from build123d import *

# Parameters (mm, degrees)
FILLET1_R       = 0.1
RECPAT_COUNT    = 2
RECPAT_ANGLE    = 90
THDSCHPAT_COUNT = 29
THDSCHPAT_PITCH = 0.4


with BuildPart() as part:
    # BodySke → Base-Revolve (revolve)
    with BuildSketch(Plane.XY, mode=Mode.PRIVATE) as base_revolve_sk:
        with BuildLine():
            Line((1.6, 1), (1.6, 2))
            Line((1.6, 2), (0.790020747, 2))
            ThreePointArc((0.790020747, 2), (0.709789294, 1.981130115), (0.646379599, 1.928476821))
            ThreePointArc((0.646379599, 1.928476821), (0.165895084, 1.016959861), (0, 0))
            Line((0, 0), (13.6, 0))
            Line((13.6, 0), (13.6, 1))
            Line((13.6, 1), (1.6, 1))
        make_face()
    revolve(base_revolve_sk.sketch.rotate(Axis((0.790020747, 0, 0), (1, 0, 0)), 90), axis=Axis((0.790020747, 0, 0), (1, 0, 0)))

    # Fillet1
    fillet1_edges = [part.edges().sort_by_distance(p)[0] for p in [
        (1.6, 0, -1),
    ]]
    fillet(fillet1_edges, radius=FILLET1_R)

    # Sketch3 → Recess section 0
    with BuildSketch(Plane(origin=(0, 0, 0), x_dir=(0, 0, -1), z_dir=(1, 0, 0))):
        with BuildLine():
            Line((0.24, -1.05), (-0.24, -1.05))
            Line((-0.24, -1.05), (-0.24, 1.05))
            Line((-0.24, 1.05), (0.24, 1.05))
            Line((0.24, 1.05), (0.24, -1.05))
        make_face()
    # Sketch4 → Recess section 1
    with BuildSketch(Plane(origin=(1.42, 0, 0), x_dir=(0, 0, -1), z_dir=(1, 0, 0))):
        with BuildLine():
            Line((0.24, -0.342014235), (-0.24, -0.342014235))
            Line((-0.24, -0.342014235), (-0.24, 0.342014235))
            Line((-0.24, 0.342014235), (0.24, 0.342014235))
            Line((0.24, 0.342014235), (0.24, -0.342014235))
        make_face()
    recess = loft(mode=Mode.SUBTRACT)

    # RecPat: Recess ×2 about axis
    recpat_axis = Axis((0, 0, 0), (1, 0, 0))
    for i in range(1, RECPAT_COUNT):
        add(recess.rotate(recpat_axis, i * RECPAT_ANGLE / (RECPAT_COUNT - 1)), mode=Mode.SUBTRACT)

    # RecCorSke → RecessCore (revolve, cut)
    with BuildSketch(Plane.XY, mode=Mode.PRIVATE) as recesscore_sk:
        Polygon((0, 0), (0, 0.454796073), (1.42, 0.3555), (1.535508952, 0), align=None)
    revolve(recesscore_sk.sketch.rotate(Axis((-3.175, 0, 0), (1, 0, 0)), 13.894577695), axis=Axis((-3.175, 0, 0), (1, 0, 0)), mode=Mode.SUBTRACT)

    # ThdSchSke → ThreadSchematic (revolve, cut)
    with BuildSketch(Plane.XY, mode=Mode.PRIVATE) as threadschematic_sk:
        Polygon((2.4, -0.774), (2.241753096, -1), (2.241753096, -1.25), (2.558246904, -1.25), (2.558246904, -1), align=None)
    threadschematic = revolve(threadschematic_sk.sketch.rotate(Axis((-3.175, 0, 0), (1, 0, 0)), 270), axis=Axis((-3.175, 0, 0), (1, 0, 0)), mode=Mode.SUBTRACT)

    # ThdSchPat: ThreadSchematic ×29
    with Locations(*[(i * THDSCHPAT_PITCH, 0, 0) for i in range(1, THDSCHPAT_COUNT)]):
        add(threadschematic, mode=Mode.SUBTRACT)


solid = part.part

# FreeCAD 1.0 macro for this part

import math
import FreeCAD as App
import Part
import Sketcher
Q = App.Units.Quantity


def edges_at(feature, points):
    """Names of the edges that pass closest to the given points."""
    edges = feature.Shape.Edges
    near = lambda p: min(range(len(edges)), key=lambda i: edges[i].distToShape(Part.Vertex(*p))[0])
    return sorted({f"Edge{near(p) + 1}" for p in points})


def add_polygon(sketch, points):
    """Adds a closed chain of lines whose ends are joined by coincident constraints."""
    first, n = sketch.GeometryCount, len(points)
    for a, b in zip(points, points[1:] + points[:1]):
        sketch.addGeometry(Part.LineSegment(App.Vector(*a, 0), App.Vector(*b, 0)), False)
    for i in range(n):
        sketch.addConstraint(Sketcher.Constraint("Coincident", first + i, 2, first + (i + 1) % n, 1))

doc = App.newDocument("Part")
body = doc.addObject("PartDesign::Body", "Body")

sketch1 = doc.addObject("Sketcher::SketchObject", "Sketch")
body.addObject(sketch1)
sketch1.AttachmentSupport = (doc.XY_Plane, [""])
sketch1.MapMode = "FlatFace"
sketch1.addGeometry([
    Part.LineSegment(App.Vector(1.6, 1, 0), App.Vector(1.6, 2, 0)),
    Part.LineSegment(App.Vector(1.6, 2, 0), App.Vector(0.790021, 2, 0)),
    Part.ArcOfCircle(Part.Circle(App.Vector(0.790021, 1.82, 0), App.Vector(0, 0, 1), 0.18), math.radians(90), math.radians(142.940145)),
    Part.ArcOfCircle(Part.Circle(App.Vector(3.2, 0, 0), App.Vector(0, 0, 1), 3.2), math.radians(142.940145), math.radians(180)),
    Part.LineSegment(App.Vector(0, 0, 0), App.Vector(13.6, 0, 0)),
    Part.LineSegment(App.Vector(13.6, 0, 0), App.Vector(13.6, 1, 0)),
    Part.LineSegment(App.Vector(13.6, 1, 0), App.Vector(1.6, 1, 0)),
], False)
sketch1.addConstraint([
    Sketcher.Constraint("Coincident", 0, 2, 1, 1),
    Sketcher.Constraint("Tangent", 1, 2, 2, 1),
    Sketcher.Constraint("Tangent", 2, 2, 3, 1),
    Sketcher.Constraint("Coincident", 3, 2, 4, 1),
    Sketcher.Constraint("Coincident", 4, 2, 5, 1),
    Sketcher.Constraint("Coincident", 5, 2, 6, 1),
    Sketcher.Constraint("Coincident", 6, 2, 0, 1),
    Sketcher.Constraint("Vertical", 0),
    Sketcher.Constraint("Horizontal", 1),
    Sketcher.Constraint("Horizontal", 4),
    Sketcher.Constraint("Vertical", 5),
    Sketcher.Constraint("Horizontal", 6),
    Sketcher.Constraint("Coincident", 3, 2, -1, 1),
    Sketcher.Constraint("PointOnObject", 3, 3, -1),
    Sketcher.Constraint("Equal", 0, 5),
    Sketcher.Constraint("Radius", 3, Q("3.2 mm")),
    Sketcher.Constraint("DistanceX", 6, 2, 6, 1, Q("12 mm")),
    Sketcher.Constraint("DistanceY", 0, 1, 0, 2, Q("1 mm")),
    Sketcher.Constraint("Radius", 2, Q("0.18 mm")),
    Sketcher.Constraint("DistanceX", 4, 1, 4, 2, Q("13.6 mm")),
])
revolution = doc.addObject("PartDesign::Revolution", "Revolution")
body.addObject(revolution)
revolution.Profile = sketch1
revolution.ReferenceAxis = (sketch1, ["H_Axis"])
revolution.Angle = 360
doc.recompute()

fillet = doc.addObject("PartDesign::Fillet", "Fillet")
body.addObject(fillet)
fillet.Base = (revolution, edges_at(revolution, [(1.6, 0, -1)]))
fillet.Radius = 0.1

sketch2 = doc.addObject("Sketcher::SketchObject", "Sketch001")
body.addObject(sketch2)
sketch2.AttachmentSupport = (doc.YZ_Plane, [""])
sketch2.MapMode = "FlatFace"
add_polygon(sketch2, [(-1.05, 0.24), (-1.05, -0.24), (1.05, -0.24), (1.05, 0.24)])
sketch2.addConstraint([
    Sketcher.Constraint("Vertical", 0),
    Sketcher.Constraint("Horizontal", 1),
    Sketcher.Constraint("Vertical", 2),
    Sketcher.Constraint("Horizontal", 3),
    Sketcher.Constraint("Symmetric", 0, 2, 2, 2, -1, 1),
    Sketcher.Constraint("DistanceX", 1, 1, 1, 2, Q("2.1 mm")),
    Sketcher.Constraint("DistanceY", 0, 2, 0, 1, Q("0.48 mm")),
])

sketch3 = doc.addObject("Sketcher::SketchObject", "Sketch002")
body.addObject(sketch3)
sketch3.AttachmentSupport = (doc.YZ_Plane, [""])
sketch3.MapMode = "FlatFace"
sketch3.AttachmentOffset = App.Placement(App.Vector(0, 0, 1.42), App.Rotation())
add_polygon(sketch3, [(-0.342014, 0.24), (-0.342014, -0.24), (0.342014, -0.24), (0.342014, 0.24)])
sketch3.addConstraint([
    Sketcher.Constraint("Vertical", 0),
    Sketcher.Constraint("Horizontal", 1),
    Sketcher.Constraint("Vertical", 2),
    Sketcher.Constraint("Horizontal", 3),
    Sketcher.Constraint("Symmetric", 0, 2, 2, 2, -1, 1),
    Sketcher.Constraint("DistanceY", 0, 2, 0, 1, Q("0.48 mm")),
    Sketcher.Constraint("DistanceX", 1, 1, 1, 2, Q("0.684028 mm")),
])

subtractiveloft = doc.addObject("PartDesign::SubtractiveLoft", "SubtractiveLoft")
body.addObject(subtractiveloft)
subtractiveloft.Profile = sketch2
subtractiveloft.Sections = [sketch3]
doc.recompute()

polarpattern = doc.addObject("PartDesign::PolarPattern", "PolarPattern")
body.addObject(polarpattern)
polarpattern.Originals = [subtractiveloft]
polarpattern.Axis = (doc.X_Axis, [""])
polarpattern.Angle = 90
polarpattern.Occurrences = 2
body.Tip = polarpattern

sketch4 = doc.addObject("Sketcher::SketchObject", "Sketch003")
body.addObject(sketch4)
sketch4.AttachmentSupport = (doc.XY_Plane, [""])
sketch4.MapMode = "FlatFace"
add_polygon(sketch4, [(0, 0.454796), (0, 0), (1.535509, 0), (1.42, 0.3555)])
sketch4.addConstraint([
    Sketcher.Constraint("Vertical", 0),
    Sketcher.Constraint("Horizontal", 1),
    Sketcher.Constraint("Coincident", 0, 2, -1, 1),
    Sketcher.Constraint("Angle", 2, Q("108 deg")),
    Sketcher.Constraint("Angle", 3, Q("176 deg")),
    Sketcher.Constraint("DistanceX", -1, 1, 2, 2, Q("1.42 mm")),
    Sketcher.Constraint("DistanceX", 1, 1, 1, 2, Q("1.535509 mm")),
])
groove = doc.addObject("PartDesign::Groove", "Groove")
body.addObject(groove)
groove.Profile = sketch4
groove.ReferenceAxis = (sketch4, ["H_Axis"])
groove.Angle = 360

sketch5 = doc.addObject("Sketcher::SketchObject", "Sketch004")
body.addObject(sketch5)
sketch5.AttachmentSupport = (doc.XY_Plane, [""])
sketch5.MapMode = "FlatFace"
add_polygon(sketch5, [(2.4, -0.774), (2.241753, -1), (2.241753, -1.25), (2.558247, -1.25), (2.558247, -1)])
sketch5.addConstraint([
    Sketcher.Constraint("Vertical", 1),
    Sketcher.Constraint("Horizontal", 2),
    Sketcher.Constraint("Vertical", 3),
    Sketcher.Constraint("Horizontal", 0, 2, 3, 2),
    Sketcher.Constraint("Equal", 0, 4),
    Sketcher.Constraint("Angle", 0, Q("-125 deg")),
    Sketcher.Constraint("DistanceY", 0, 2, -1, 1, Q("1 mm")),
    Sketcher.Constraint("DistanceY", 1, 2, 1, 1, Q("0.25 mm")),
    Sketcher.Constraint("DistanceX", -1, 1, 4, 2, Q("2.4 mm")),
    Sketcher.Constraint("DistanceY", 4, 2, -1, 1, Q("0.774 mm")),
])
groove2 = doc.addObject("PartDesign::Groove", "Groove001")
body.addObject(groove2)
groove2.Profile = sketch5
groove2.ReferenceAxis = (sketch5, ["H_Axis"])
groove2.Angle = 360
doc.recompute()

linearpattern = doc.addObject("PartDesign::LinearPattern", "LinearPattern")
body.addObject(linearpattern)
linearpattern.Originals = [groove2]
linearpattern.Direction = (doc.X_Axis, [""])
linearpattern.Mode = "offset"
linearpattern.Offset = 0.4
linearpattern.Occurrences = 29
body.Tip = linearpattern

doc.recompute()
